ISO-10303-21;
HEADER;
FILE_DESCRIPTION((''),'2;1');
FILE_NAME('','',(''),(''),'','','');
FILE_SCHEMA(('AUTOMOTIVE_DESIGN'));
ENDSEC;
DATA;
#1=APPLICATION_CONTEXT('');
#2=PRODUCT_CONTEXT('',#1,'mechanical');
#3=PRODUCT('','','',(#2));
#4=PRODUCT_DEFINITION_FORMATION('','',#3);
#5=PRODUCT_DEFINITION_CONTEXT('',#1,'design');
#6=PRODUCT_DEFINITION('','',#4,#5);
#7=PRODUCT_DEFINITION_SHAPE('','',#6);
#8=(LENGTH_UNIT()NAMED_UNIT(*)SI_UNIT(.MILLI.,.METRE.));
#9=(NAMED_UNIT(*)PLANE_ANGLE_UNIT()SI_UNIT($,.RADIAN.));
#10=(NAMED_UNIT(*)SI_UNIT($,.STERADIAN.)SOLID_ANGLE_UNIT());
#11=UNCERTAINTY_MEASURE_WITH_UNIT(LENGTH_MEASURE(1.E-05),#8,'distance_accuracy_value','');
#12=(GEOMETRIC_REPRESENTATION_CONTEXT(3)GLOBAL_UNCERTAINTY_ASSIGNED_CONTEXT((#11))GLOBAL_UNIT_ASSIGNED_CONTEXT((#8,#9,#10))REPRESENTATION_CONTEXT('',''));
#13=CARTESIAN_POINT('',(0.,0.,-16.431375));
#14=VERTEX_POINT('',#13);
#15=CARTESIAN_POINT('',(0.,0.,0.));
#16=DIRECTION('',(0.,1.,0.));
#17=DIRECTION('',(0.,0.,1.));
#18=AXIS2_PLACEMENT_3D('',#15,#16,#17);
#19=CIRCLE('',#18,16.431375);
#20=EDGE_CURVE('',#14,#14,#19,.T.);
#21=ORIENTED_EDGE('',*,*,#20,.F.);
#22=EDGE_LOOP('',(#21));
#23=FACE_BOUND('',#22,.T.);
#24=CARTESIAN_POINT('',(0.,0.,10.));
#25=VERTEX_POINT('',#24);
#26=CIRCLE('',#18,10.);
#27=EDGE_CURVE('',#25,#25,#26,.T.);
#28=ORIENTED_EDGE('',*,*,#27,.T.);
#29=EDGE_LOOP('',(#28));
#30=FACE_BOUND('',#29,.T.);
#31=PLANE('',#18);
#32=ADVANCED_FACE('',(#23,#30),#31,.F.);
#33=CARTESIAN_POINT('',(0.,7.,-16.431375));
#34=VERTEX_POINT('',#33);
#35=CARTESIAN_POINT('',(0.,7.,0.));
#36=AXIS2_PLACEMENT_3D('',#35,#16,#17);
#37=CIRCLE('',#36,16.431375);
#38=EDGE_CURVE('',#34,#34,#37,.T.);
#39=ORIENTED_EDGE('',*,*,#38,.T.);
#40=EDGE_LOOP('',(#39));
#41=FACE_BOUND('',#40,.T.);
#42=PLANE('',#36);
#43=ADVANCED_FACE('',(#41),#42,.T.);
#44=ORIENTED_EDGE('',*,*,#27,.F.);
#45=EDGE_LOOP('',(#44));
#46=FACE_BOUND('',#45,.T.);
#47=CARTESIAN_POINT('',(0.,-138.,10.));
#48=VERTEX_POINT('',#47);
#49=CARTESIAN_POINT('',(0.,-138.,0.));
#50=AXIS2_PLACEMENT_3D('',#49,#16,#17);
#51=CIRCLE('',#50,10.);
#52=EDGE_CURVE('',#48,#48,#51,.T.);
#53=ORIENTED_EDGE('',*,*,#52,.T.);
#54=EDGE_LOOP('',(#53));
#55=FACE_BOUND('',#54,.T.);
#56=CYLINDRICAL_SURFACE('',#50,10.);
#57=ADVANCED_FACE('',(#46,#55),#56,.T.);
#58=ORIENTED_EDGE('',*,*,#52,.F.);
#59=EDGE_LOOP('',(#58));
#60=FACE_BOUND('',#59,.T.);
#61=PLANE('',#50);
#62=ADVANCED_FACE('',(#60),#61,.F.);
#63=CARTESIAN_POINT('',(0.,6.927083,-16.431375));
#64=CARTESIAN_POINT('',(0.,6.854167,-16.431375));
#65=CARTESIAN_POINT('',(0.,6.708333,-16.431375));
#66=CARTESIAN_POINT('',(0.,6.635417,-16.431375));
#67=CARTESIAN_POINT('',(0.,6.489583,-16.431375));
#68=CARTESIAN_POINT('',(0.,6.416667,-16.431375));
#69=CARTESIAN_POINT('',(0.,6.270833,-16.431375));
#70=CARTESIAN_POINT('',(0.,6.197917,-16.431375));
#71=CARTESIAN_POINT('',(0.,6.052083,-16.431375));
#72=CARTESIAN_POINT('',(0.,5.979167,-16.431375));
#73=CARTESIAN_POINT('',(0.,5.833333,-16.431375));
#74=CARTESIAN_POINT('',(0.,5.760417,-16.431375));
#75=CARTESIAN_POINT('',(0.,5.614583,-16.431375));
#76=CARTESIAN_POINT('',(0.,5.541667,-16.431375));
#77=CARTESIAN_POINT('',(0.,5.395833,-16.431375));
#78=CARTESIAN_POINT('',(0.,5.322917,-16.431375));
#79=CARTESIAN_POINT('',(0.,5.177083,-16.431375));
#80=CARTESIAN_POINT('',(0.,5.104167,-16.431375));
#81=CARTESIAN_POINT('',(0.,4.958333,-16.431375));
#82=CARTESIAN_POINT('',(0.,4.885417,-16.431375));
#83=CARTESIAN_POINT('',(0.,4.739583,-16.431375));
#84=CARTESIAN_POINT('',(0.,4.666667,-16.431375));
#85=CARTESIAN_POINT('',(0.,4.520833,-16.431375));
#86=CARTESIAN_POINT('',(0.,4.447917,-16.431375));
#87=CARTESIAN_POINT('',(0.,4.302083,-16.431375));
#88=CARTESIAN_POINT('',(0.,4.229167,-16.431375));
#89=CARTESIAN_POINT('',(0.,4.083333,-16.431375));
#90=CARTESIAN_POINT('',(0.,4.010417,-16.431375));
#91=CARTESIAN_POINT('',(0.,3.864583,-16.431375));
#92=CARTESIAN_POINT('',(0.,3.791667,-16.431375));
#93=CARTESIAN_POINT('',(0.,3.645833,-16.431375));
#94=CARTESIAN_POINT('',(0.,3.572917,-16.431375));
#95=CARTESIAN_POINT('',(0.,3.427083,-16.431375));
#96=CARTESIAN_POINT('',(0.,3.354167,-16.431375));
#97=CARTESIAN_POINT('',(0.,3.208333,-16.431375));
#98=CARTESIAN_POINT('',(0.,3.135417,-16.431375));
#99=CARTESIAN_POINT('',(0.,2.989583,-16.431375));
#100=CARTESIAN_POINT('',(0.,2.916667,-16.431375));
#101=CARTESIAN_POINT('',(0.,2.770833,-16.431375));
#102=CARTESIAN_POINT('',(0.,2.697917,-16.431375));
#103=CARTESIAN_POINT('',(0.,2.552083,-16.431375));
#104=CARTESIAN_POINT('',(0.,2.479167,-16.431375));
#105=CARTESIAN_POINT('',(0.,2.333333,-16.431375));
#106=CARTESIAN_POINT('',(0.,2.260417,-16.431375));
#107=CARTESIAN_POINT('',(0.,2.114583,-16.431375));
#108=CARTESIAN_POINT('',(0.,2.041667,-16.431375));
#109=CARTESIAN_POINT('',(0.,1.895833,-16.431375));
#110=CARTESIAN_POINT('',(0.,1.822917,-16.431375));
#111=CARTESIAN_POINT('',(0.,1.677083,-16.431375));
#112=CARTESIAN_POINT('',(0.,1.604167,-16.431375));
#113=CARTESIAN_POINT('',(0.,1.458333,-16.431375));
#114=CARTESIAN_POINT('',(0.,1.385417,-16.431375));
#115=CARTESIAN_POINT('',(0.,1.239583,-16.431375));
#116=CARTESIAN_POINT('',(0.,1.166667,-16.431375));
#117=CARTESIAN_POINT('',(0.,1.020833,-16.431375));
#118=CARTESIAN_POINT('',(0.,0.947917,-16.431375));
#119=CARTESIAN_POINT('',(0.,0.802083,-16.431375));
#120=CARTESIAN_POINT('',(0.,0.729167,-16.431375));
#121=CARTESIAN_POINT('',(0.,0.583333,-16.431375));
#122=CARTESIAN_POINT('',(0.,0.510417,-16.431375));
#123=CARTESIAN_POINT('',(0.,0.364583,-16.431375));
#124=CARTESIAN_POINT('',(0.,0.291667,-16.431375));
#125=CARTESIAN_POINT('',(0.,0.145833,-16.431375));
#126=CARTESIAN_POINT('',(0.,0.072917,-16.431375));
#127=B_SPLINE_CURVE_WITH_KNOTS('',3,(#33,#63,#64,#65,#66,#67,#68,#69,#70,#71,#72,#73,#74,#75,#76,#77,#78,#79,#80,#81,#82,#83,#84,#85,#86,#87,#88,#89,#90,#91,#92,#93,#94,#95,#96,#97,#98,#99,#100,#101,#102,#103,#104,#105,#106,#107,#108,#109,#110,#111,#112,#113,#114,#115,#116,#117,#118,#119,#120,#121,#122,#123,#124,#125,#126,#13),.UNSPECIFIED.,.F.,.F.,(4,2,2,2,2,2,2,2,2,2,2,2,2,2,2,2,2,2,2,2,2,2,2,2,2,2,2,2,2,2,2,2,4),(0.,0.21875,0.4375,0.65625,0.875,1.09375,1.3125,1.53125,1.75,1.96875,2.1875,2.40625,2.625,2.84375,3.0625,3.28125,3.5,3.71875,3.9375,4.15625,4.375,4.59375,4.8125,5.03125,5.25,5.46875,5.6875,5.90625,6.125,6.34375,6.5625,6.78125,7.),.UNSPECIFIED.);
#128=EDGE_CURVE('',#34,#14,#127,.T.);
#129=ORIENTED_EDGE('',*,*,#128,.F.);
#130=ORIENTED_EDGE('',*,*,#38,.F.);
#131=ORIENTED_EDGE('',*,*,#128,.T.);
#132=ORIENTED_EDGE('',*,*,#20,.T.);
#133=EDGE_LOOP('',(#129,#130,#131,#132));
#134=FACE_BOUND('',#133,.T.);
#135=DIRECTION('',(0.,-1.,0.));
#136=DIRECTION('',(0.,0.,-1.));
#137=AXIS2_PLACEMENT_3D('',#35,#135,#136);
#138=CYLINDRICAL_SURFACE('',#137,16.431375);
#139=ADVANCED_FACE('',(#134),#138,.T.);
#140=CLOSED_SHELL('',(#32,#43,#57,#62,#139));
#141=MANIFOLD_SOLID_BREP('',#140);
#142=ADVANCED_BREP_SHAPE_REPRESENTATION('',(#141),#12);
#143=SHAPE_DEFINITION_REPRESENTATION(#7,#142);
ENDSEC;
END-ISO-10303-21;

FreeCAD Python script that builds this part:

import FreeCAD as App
import Part
import Sketcher

V = App.Vector

doc = App.newDocument("Part")
body = doc.addObject("PartDesign::Body", "Body")

# Sketch on XZ plane
sketch1 = doc.addObject("Sketcher::SketchObject", "Sketch")
body.addObject(sketch1)
sketch1.AttachmentSupport = (doc.XZ_Plane, [""])
sketch1.MapMode = "FlatFace"
sketch1.addGeometry(Part.Circle(V(0, 0, 0), V(0, 0, 1), 10), False)
sketch1.addConstraint([
    Sketcher.Constraint("Coincident", 0, 3, -1, 1),
    Sketcher.Constraint("Diameter", 0, 20.0),
])
pad1 = doc.addObject("PartDesign::Pad", "Pad")
body.addObject(pad1)
pad1.Profile = sketch1
pad1.Length = 138

# Sketch on XZ plane
sketch2 = doc.addObject("Sketcher::SketchObject", "Sketch001")
body.addObject(sketch2)
sketch2.AttachmentSupport = (doc.XZ_Plane, [""])
sketch2.MapMode = "FlatFace"
sketch2.addGeometry(Part.Circle(V(0, 0, 0), V(0, 0, 1), 16.431375), False)
sketch2.addConstraint([
    Sketcher.Constraint("Coincident", 0, 3, -1, 1),
    Sketcher.Constraint("Diameter", 0, 32.862749),
])
pad2 = doc.addObject("PartDesign::Pad", "Pad001")
body.addObject(pad2)
pad2.Profile = sketch2
pad2.Length = 7
pad2.Reversed = True

doc.recompute()
